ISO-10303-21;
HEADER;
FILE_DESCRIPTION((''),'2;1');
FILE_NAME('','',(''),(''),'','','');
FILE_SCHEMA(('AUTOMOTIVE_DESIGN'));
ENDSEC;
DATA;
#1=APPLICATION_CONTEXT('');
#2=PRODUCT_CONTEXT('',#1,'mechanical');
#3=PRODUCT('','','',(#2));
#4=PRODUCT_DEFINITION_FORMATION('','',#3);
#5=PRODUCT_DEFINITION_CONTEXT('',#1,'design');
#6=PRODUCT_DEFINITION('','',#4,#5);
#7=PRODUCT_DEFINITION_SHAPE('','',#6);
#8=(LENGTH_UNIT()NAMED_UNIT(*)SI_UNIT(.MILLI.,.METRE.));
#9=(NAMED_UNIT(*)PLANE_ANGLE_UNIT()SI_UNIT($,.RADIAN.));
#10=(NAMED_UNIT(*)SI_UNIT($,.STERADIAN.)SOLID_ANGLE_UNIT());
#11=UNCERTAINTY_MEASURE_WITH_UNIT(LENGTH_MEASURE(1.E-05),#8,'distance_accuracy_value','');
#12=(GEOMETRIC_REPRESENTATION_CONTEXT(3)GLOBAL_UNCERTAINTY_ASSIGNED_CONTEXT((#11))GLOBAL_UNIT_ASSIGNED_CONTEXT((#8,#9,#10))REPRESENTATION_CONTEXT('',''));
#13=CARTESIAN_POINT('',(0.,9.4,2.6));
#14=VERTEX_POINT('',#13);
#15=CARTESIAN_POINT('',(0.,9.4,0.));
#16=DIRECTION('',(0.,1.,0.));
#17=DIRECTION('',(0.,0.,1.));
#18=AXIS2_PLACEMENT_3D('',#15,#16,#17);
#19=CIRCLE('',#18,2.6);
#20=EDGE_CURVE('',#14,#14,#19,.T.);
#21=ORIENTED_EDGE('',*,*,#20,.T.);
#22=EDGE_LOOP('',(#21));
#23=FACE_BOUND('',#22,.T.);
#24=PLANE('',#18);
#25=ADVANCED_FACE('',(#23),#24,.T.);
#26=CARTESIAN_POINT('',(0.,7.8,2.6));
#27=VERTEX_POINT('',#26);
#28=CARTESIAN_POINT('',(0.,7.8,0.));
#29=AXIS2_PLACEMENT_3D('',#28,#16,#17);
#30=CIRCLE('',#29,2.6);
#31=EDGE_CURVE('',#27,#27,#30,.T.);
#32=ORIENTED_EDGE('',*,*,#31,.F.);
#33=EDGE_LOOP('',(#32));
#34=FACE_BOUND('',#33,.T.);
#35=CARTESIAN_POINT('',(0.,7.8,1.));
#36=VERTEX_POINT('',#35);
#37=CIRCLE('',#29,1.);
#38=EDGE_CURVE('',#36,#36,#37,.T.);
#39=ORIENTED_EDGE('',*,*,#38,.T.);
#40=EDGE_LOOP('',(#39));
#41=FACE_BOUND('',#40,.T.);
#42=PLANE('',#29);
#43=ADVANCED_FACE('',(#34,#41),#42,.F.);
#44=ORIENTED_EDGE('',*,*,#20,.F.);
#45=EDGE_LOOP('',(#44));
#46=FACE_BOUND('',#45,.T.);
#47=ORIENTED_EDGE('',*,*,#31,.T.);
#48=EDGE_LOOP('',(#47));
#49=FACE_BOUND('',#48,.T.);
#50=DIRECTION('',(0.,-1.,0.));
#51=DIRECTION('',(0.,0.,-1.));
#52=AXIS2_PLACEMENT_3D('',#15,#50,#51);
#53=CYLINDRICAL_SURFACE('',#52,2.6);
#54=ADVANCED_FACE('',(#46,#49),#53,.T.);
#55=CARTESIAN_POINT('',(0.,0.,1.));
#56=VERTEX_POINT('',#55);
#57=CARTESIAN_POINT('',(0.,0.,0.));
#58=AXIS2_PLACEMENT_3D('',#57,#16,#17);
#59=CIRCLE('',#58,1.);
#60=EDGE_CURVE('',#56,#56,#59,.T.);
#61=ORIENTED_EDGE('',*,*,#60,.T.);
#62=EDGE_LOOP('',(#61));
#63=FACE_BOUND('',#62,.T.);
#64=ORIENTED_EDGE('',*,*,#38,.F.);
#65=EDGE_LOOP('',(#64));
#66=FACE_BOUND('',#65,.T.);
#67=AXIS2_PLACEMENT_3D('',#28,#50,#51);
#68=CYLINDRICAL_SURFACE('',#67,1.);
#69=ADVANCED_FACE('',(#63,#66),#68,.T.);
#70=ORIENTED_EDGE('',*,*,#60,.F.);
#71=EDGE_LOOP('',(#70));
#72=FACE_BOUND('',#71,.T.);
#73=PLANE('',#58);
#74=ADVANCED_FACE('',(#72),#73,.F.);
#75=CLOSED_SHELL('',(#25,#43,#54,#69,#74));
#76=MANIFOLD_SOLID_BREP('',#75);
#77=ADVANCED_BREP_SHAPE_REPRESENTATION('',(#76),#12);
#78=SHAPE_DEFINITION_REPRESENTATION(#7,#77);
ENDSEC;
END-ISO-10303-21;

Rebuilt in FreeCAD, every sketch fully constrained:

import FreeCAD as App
import Part
import Sketcher

V = App.Vector
Q = App.Units.Quantity

doc = App.newDocument("Part")
body = doc.addObject("PartDesign::Body", "Body")

# Sketch on XZ plane
sketch1 = body.newObject("Sketcher::SketchObject", "Sketch")
sketch1.AttachmentSupport = (doc.getObject("XZ_Plane"), [""])
sketch1.MapMode = "FlatFace"
sketch1.addGeometry(Part.Circle(V(0, 0, 0), V(0, 0, 1), 1), False)
sketch1.addConstraint([
    Sketcher.Constraint("Coincident", 0, 3, -1, 1),
    Sketcher.Constraint("Diameter", 0, Q("2 mm")),
])
pad1 = body.newObject("PartDesign::Pad", "Pad")
pad1.Profile = sketch1
pad1.Length = 7.8
pad1.Reversed = True

# Sketch on XZ plane
sketch2 = body.newObject("Sketcher::SketchObject", "Sketch001")
sketch2.AttachmentSupport = (doc.getObject("XZ_Plane"), [""])
sketch2.MapMode = "FlatFace"
sketch2.AttachmentOffset = App.Placement(V(0, 0, -7.8), App.Rotation())
sketch2.addGeometry(Part.Circle(V(0, 0, 0), V(0, 0, 1), 2.6), False)
sketch2.addConstraint([
    Sketcher.Constraint("Coincident", 0, 3, -1, 1),
    Sketcher.Constraint("Diameter", 0, Q("5.2 mm")),
])
pad2 = body.newObject("PartDesign::Pad", "Pad001")
pad2.Profile = sketch2
pad2.Length = 1.6
pad2.Reversed = True

doc.recompute()
